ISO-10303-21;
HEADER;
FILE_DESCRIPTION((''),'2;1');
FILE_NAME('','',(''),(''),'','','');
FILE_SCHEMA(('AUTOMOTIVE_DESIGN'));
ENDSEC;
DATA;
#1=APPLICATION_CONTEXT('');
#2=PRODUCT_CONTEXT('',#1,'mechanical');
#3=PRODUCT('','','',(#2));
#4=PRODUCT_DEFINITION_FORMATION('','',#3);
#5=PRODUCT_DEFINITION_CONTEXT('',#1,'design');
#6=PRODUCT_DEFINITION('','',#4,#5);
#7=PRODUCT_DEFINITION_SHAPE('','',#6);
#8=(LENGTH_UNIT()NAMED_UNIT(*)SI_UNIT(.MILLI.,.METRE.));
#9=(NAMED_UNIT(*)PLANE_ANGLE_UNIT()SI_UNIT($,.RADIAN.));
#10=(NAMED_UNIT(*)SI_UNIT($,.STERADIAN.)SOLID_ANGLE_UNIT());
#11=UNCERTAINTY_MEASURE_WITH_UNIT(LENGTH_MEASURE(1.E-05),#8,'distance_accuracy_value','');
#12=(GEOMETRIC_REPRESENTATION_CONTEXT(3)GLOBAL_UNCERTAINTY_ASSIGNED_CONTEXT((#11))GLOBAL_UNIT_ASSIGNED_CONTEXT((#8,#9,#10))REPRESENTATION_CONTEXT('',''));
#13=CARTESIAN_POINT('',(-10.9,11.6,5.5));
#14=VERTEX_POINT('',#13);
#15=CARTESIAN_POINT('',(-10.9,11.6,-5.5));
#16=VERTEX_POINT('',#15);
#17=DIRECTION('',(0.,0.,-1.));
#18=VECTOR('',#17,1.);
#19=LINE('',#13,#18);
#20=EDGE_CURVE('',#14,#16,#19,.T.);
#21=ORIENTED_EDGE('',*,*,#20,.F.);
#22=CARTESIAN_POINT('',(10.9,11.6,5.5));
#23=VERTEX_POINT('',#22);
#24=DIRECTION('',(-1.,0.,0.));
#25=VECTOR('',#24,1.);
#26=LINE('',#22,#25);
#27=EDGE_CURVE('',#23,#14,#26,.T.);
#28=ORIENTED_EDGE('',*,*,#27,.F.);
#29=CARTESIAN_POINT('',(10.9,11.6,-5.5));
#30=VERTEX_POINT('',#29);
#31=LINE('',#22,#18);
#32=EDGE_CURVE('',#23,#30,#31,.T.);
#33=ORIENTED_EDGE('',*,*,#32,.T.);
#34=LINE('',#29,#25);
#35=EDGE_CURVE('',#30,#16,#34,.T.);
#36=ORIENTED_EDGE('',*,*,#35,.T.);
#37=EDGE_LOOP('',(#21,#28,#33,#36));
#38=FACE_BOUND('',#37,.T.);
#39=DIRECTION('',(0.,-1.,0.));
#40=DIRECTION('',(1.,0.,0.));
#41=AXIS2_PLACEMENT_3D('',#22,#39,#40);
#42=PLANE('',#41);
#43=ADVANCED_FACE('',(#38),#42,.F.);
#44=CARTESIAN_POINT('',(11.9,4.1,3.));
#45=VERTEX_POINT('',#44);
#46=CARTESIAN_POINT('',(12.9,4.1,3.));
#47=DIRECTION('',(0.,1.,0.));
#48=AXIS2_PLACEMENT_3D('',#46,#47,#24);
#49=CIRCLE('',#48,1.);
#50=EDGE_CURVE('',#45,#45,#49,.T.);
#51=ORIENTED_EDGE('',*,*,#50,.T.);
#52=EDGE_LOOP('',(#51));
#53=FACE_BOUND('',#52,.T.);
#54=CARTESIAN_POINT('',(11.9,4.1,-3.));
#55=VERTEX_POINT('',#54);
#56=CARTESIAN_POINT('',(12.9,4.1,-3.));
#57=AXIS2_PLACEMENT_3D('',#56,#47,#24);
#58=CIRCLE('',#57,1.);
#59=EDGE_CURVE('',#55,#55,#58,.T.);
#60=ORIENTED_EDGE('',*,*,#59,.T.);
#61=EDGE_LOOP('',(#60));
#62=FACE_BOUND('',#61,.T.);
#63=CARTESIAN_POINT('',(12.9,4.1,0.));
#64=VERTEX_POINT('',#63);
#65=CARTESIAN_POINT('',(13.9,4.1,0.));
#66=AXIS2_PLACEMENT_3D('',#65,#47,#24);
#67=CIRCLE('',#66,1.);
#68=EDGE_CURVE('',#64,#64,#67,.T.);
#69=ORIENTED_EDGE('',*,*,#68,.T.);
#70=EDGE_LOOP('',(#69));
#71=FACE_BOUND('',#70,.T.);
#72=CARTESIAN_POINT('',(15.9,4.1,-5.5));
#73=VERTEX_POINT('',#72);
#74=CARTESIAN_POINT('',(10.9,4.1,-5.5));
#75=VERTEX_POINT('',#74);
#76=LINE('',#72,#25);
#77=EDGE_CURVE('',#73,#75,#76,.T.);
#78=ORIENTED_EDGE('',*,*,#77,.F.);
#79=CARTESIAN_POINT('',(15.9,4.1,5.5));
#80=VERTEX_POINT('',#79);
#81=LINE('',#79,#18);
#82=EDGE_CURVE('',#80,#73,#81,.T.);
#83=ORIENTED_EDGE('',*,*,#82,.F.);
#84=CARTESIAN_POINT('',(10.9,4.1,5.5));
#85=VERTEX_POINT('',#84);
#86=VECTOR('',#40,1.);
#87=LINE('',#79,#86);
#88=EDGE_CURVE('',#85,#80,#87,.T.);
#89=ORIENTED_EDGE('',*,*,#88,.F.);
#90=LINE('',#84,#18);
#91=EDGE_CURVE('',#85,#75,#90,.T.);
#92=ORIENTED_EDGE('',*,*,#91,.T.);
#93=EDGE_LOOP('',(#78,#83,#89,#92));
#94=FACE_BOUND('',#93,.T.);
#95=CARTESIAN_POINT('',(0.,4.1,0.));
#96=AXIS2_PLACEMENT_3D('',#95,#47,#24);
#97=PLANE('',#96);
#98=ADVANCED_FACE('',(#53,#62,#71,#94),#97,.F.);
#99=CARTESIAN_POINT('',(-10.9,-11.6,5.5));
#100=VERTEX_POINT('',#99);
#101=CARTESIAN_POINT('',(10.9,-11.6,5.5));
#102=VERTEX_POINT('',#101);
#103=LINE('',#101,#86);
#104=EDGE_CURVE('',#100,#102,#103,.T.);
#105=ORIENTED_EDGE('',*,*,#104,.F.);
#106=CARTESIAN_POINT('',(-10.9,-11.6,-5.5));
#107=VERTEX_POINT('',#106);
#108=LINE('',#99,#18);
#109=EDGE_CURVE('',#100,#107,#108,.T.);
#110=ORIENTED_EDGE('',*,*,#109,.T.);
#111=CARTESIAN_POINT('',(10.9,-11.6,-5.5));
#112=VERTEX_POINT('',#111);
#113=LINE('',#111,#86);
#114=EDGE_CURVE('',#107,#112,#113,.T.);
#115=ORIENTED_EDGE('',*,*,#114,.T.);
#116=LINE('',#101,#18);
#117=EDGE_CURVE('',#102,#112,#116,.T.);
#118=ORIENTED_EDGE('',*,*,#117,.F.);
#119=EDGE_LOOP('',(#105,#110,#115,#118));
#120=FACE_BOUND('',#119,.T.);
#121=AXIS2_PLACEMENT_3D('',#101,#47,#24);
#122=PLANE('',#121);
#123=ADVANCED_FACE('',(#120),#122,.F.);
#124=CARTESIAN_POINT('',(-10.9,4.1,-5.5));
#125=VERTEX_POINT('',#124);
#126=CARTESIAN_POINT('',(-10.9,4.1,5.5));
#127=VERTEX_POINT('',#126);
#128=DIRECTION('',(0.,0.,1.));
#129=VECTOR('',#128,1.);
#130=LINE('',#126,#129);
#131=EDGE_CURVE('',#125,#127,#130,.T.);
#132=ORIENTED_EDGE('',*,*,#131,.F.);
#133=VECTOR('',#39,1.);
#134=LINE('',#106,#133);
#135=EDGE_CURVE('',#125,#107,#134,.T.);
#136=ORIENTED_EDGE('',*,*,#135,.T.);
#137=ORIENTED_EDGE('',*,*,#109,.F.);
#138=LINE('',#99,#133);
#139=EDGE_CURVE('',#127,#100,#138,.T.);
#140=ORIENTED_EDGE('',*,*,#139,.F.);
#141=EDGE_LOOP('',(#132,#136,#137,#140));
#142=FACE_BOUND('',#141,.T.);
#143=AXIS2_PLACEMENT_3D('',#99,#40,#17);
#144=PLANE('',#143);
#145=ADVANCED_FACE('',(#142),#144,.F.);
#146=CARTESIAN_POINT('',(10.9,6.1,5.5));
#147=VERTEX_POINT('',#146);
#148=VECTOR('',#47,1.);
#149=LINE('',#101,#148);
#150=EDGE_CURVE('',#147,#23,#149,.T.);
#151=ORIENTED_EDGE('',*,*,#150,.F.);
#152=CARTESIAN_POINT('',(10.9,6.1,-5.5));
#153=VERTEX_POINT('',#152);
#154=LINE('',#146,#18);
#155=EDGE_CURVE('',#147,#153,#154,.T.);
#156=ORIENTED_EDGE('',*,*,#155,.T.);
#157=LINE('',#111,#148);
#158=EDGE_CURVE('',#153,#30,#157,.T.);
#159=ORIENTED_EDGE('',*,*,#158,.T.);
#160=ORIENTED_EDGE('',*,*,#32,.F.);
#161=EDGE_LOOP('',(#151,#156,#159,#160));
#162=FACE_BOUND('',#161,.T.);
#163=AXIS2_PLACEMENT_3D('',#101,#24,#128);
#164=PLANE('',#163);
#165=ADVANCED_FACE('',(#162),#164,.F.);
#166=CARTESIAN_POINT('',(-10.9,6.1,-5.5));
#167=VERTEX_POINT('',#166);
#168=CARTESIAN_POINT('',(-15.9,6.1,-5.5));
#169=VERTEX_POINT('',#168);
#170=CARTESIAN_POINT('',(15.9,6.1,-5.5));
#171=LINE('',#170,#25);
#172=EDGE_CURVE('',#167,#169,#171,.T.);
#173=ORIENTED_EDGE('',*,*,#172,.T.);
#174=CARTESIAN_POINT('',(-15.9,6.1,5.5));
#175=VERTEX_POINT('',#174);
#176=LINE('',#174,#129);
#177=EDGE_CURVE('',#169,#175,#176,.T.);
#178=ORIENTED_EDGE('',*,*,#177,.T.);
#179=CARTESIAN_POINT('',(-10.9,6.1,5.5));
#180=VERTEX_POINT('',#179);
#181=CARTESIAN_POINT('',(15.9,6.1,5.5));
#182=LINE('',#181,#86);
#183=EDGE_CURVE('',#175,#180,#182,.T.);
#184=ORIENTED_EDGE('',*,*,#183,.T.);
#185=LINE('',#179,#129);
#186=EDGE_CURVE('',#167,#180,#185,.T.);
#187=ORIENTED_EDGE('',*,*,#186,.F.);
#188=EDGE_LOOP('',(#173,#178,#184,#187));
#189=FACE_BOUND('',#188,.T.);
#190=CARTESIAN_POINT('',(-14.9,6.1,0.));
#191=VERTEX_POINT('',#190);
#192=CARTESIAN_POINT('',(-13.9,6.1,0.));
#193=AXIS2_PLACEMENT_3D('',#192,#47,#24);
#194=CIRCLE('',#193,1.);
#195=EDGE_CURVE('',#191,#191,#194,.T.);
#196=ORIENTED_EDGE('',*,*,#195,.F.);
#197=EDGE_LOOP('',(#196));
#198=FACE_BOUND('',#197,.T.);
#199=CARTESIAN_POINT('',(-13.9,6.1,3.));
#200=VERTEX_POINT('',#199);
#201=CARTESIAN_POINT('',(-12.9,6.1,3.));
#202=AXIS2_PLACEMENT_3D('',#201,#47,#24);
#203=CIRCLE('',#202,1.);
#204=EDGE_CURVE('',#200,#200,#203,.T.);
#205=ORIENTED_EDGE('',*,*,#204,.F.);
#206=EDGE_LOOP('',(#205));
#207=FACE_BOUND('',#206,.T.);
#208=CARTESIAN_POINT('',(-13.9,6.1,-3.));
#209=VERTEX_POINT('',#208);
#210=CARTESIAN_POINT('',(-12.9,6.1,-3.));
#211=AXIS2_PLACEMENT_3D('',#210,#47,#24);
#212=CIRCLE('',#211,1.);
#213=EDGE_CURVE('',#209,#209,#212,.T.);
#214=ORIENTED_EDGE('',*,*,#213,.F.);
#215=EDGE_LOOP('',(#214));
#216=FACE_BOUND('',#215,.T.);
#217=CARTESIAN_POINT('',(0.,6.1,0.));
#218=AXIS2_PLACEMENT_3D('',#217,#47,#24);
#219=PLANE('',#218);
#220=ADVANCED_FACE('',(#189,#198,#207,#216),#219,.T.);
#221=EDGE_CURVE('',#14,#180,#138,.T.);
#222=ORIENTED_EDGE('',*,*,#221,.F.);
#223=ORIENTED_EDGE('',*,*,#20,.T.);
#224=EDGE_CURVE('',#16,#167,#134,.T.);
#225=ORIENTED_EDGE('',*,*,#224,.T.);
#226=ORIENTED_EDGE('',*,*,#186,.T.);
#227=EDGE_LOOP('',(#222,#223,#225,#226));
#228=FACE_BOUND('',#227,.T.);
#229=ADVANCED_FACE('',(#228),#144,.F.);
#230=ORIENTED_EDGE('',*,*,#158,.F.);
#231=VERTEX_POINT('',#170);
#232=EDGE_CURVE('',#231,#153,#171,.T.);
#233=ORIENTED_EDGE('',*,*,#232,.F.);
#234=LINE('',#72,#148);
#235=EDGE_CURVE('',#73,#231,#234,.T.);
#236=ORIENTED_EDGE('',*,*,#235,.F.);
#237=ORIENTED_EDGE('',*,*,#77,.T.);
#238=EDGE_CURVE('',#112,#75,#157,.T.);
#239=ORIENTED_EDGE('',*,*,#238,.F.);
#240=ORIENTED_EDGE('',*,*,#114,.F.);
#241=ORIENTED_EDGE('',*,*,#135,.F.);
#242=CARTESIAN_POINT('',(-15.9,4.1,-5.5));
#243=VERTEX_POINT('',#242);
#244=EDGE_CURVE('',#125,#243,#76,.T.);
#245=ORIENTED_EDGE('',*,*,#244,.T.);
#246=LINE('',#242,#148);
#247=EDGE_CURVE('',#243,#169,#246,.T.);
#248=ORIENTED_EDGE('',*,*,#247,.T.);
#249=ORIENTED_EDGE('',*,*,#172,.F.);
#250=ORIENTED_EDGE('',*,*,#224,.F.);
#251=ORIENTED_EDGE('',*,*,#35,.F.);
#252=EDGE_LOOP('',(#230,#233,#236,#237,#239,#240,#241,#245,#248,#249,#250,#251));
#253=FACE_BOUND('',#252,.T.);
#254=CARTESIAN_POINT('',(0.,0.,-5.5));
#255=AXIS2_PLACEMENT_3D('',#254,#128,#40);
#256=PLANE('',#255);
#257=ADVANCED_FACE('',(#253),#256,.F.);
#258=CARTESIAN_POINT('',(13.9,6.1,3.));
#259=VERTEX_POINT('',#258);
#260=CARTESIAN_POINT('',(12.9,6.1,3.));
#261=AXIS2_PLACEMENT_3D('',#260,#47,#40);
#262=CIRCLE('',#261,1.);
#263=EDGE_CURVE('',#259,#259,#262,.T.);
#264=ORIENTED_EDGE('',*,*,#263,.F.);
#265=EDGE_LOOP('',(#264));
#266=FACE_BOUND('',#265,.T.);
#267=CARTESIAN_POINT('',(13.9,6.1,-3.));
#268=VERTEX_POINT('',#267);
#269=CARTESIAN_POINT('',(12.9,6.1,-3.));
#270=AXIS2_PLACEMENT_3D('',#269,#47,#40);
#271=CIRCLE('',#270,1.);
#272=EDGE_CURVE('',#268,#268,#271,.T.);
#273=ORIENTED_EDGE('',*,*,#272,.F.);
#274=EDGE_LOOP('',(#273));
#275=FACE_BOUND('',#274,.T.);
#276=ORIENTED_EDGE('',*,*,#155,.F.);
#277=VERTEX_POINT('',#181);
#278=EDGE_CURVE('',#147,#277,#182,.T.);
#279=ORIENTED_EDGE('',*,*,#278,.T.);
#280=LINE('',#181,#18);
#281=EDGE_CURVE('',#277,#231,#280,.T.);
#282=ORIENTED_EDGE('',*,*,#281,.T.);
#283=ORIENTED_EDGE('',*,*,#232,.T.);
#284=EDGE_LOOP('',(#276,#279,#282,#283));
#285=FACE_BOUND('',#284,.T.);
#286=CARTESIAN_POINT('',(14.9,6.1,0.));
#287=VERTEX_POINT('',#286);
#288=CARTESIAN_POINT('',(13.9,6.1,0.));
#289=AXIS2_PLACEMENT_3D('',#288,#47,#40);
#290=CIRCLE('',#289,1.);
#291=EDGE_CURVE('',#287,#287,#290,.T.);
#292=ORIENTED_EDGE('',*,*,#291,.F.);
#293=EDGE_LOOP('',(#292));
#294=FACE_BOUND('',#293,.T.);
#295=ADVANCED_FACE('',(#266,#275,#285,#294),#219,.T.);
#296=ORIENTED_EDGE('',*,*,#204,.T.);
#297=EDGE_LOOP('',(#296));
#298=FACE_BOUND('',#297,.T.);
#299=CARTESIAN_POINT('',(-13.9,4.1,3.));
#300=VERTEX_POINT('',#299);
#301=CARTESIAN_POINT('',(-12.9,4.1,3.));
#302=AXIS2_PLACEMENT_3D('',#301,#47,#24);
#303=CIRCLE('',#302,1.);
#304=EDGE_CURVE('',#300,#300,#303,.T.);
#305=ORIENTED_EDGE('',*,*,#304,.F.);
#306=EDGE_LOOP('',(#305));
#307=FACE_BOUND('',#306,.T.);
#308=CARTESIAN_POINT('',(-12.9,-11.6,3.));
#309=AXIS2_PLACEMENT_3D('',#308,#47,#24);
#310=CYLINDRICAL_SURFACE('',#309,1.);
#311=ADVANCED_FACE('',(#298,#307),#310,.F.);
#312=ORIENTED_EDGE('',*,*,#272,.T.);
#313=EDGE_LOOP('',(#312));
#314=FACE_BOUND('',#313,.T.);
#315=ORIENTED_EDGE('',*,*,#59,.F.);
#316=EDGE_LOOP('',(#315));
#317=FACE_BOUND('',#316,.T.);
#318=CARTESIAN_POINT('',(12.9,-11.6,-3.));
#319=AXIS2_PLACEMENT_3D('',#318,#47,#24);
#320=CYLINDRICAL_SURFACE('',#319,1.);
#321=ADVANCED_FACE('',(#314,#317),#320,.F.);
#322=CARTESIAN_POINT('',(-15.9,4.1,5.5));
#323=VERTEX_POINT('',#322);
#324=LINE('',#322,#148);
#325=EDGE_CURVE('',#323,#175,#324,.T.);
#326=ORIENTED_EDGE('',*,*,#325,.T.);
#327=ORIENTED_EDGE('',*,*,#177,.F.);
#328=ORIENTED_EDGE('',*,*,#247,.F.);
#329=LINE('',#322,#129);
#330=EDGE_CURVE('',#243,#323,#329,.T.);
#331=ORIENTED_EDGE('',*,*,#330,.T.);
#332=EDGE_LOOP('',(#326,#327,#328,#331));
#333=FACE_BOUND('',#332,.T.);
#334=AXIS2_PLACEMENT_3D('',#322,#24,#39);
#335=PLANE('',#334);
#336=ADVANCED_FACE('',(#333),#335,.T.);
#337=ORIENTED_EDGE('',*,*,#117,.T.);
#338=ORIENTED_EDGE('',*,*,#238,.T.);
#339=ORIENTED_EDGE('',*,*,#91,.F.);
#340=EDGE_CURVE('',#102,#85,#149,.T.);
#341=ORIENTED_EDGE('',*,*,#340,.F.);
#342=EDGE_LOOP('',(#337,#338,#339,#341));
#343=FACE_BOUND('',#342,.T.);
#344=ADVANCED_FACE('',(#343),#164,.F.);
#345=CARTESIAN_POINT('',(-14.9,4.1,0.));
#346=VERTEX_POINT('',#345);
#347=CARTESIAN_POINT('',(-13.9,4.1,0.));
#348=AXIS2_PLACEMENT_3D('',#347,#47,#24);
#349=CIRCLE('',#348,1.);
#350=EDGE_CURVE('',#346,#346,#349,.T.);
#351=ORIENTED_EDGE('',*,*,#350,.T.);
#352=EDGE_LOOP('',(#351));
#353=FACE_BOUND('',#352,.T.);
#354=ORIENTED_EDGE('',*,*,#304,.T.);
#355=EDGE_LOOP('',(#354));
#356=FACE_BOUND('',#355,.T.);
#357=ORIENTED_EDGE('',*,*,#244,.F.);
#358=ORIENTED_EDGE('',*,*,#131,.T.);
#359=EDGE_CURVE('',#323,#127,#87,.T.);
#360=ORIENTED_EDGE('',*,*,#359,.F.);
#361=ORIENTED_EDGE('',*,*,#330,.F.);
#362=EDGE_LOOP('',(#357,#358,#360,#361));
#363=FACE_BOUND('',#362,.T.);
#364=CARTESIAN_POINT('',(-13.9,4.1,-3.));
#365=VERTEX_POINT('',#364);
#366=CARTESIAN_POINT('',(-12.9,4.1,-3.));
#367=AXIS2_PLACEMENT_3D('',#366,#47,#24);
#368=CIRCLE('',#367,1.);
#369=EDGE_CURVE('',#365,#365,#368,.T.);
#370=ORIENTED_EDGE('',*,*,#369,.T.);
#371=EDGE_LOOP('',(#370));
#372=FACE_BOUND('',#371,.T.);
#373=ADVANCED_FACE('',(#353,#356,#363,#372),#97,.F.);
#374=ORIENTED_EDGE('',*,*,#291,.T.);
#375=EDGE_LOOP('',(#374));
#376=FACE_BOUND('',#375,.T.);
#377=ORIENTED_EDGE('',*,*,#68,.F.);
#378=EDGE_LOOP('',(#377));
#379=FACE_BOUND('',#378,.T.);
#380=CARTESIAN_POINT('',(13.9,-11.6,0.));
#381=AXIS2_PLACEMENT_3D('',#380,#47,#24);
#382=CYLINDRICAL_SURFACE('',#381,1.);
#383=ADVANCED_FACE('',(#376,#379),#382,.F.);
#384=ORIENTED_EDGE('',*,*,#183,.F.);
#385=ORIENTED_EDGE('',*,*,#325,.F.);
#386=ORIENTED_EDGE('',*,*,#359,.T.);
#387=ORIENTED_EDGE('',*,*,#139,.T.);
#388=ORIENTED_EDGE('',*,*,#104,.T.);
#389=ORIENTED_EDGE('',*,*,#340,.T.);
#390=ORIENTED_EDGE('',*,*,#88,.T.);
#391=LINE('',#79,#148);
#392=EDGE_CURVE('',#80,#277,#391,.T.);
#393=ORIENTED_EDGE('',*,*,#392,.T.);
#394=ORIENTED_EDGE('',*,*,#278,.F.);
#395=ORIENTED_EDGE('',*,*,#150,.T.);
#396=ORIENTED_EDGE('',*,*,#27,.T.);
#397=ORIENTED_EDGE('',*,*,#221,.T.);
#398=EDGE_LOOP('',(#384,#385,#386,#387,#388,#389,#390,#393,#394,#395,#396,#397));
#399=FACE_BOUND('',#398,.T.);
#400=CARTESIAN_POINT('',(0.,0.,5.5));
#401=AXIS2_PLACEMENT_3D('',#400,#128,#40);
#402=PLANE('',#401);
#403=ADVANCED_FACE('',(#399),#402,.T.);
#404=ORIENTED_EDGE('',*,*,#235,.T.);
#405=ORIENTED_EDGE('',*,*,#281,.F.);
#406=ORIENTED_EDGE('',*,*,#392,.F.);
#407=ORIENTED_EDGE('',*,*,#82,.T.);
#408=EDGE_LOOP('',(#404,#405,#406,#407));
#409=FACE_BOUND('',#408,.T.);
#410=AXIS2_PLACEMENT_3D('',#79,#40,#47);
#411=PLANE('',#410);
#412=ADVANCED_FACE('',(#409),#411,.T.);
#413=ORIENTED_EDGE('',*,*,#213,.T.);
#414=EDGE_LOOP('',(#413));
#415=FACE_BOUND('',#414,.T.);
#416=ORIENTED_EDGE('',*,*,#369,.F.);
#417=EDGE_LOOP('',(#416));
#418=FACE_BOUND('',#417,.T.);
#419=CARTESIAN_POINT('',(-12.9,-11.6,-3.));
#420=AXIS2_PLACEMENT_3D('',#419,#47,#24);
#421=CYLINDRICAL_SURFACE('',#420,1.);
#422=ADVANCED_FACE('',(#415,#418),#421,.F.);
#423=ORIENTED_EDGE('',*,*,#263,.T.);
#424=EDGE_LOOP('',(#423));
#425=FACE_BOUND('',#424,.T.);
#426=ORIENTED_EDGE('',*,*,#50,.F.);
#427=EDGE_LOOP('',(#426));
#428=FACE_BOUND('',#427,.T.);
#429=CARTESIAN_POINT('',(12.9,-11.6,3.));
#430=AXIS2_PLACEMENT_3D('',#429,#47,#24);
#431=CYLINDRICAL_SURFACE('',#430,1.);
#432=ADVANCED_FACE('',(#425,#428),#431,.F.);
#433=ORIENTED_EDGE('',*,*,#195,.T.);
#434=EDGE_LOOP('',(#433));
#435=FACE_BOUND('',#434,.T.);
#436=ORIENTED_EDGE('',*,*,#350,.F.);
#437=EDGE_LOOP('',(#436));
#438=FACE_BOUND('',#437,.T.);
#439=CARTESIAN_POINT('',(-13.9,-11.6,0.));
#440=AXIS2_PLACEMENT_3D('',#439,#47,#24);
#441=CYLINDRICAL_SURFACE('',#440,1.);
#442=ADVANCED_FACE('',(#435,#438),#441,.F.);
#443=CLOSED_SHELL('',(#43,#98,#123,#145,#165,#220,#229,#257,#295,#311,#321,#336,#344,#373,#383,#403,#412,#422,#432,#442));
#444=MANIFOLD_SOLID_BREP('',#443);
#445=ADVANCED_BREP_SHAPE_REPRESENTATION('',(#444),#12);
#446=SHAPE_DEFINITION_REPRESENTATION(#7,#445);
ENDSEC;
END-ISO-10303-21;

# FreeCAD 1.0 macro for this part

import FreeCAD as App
import Part
import Sketcher

V = App.Vector
Q = App.Units.Quantity


def add_polygon(sketch, points):
    """Adds a closed chain of lines whose ends are joined by coincident constraints."""
    first, n = sketch.GeometryCount, len(points)
    for a, b in zip(points, points[1:] + points[:1]):
        sketch.addGeometry(Part.LineSegment(App.Vector(*a, 0), App.Vector(*b, 0)), False)
    for i in range(n):
        sketch.addConstraint(Sketcher.Constraint("Coincident", first + i, 2, first + (i + 1) % n, 1))

doc = App.newDocument("Part")
body = doc.addObject("PartDesign::Body", "Body")

# Sketch on XY plane
sketch1 = body.newObject("Sketcher::SketchObject", "Sketch")
sketch1.AttachmentSupport = (doc.getObject("XY_Plane"), [""])
sketch1.MapMode = "FlatFace"
add_polygon(sketch1, [(-11, 12), (-11, -12), (11, -12), (11, 12)])  # lines 0-3
sketch1.addConstraint(Sketcher.Constraint("Vertical", 0))
sketch1.addConstraint(Sketcher.Constraint("Horizontal", 1))
sketch1.addConstraint(Sketcher.Constraint("Vertical", 2))
sketch1.addConstraint(Sketcher.Constraint("Horizontal", 3))
sketch1.addConstraint(Sketcher.Constraint("Symmetric", 0, 2, 2, 2, -1, 1))
sketch1.addConstraint(Sketcher.Constraint("DistanceX", 1, 1, 1, 2, Q("21.8 mm")))
sketch1.addConstraint(Sketcher.Constraint("DistanceY", 0, 2, 0, 1, Q("23.2 mm")))
pad1 = body.newObject("PartDesign::Pad", "Pad")
pad1.Profile = sketch1
pad1.Length = 11
pad1.Midplane = True

# Sketch on XZ plane
sketch2 = body.newObject("Sketcher::SketchObject", "Sketch001")
sketch2.AttachmentSupport = (doc.getObject("XZ_Plane"), [""])
sketch2.MapMode = "FlatFace"
sketch2.AttachmentOffset = App.Placement(V(0, 0, -6.1), App.Rotation())
add_polygon(sketch2, [(-16, -6), (-16, 6), (16, 6), (16, -6)])  # lines 0-3
sketch2.addConstraint(Sketcher.Constraint("Vertical", 0))
sketch2.addConstraint(Sketcher.Constraint("Horizontal", 1))
sketch2.addConstraint(Sketcher.Constraint("Vertical", 2))
sketch2.addConstraint(Sketcher.Constraint("Horizontal", 3))
sketch2.addConstraint(Sketcher.Constraint("Symmetric", 0, 2, 2, 2, -1, 1))
sketch2.addConstraint(Sketcher.Constraint("DistanceY", 0, 1, 0, 2, Q("11 mm")))
sketch2.addConstraint(Sketcher.Constraint("DistanceX", 1, 1, 1, 2, Q("31.8 mm")))
pad2 = body.newObject("PartDesign::Pad", "Pad001")
pad2.Profile = sketch2
pad2.Length = 2

# Sketch on XZ plane
sketch3 = body.newObject("Sketcher::SketchObject", "Sketch002")
sketch3.AttachmentSupport = (doc.getObject("XZ_Plane"), [""])
sketch3.MapMode = "FlatFace"
sketch3.AttachmentOffset = App.Placement(V(0, 0, -6.1), App.Rotation())
sketch3.addGeometry(Part.Circle(V(-13.9, 0, 0), V(0, 0, 1), 1), False)
sketch3.addGeometry(Part.Circle(V(-12.9, -3, 0), V(0, 0, 1), 1), False)
sketch3.addGeometry(Part.Circle(V(-12.9, 3, 0), V(0, 0, 1), 1), False)
sketch3.addGeometry(Part.Circle(V(12.9, 3, 0), V(0, 0, 1), 1), False)
sketch3.addGeometry(Part.Circle(V(12.9, -3, 0), V(0, 0, 1), 1), False)
sketch3.addGeometry(Part.Circle(V(13.9, 0, 0), V(0, 0, 1), 1), False)
sketch3.addConstraint(Sketcher.Constraint("Equal", 0, 1))
sketch3.addConstraint(Sketcher.Constraint("Equal", 1, 2))
sketch3.addConstraint(Sketcher.Constraint("Equal", 2, 3))
sketch3.addConstraint(Sketcher.Constraint("Equal", 3, 4))
sketch3.addConstraint(Sketcher.Constraint("Equal", 4, 5))
sketch3.addConstraint(Sketcher.Constraint("Symmetric", 1, 3, 3, 3, -1, 1))
sketch3.addConstraint(Sketcher.Constraint("Symmetric", 2, 3, 4, 3, -1, 1))
sketch3.addConstraint(Sketcher.Constraint("Symmetric", 0, 3, 5, 3, -1, 1))
sketch3.addConstraint(Sketcher.Constraint("Symmetric", 2, 3, 3, 3, -2))
sketch3.addConstraint(Sketcher.Constraint("PointOnObject", 0, 3, -1))
sketch3.addConstraint(Sketcher.Constraint("Diameter", 0, Q("2 mm")))
sketch3.addConstraint(Sketcher.Constraint("DistanceY", 1, 3, -1, 1, Q("3 mm")))
sketch3.addConstraint(Sketcher.Constraint("DistanceX", 0, 3, 1, 3, Q("1 mm")))
sketch3.addConstraint(Sketcher.Constraint("DistanceX", 0, 3, -1, 1, Q("13.9 mm")))
pocket1 = body.newObject("PartDesign::Pocket", "Pocket")
pocket1.Profile = sketch3
pocket1.Type = "ThroughAll"
pocket1.Reversed = True

doc.recompute()
